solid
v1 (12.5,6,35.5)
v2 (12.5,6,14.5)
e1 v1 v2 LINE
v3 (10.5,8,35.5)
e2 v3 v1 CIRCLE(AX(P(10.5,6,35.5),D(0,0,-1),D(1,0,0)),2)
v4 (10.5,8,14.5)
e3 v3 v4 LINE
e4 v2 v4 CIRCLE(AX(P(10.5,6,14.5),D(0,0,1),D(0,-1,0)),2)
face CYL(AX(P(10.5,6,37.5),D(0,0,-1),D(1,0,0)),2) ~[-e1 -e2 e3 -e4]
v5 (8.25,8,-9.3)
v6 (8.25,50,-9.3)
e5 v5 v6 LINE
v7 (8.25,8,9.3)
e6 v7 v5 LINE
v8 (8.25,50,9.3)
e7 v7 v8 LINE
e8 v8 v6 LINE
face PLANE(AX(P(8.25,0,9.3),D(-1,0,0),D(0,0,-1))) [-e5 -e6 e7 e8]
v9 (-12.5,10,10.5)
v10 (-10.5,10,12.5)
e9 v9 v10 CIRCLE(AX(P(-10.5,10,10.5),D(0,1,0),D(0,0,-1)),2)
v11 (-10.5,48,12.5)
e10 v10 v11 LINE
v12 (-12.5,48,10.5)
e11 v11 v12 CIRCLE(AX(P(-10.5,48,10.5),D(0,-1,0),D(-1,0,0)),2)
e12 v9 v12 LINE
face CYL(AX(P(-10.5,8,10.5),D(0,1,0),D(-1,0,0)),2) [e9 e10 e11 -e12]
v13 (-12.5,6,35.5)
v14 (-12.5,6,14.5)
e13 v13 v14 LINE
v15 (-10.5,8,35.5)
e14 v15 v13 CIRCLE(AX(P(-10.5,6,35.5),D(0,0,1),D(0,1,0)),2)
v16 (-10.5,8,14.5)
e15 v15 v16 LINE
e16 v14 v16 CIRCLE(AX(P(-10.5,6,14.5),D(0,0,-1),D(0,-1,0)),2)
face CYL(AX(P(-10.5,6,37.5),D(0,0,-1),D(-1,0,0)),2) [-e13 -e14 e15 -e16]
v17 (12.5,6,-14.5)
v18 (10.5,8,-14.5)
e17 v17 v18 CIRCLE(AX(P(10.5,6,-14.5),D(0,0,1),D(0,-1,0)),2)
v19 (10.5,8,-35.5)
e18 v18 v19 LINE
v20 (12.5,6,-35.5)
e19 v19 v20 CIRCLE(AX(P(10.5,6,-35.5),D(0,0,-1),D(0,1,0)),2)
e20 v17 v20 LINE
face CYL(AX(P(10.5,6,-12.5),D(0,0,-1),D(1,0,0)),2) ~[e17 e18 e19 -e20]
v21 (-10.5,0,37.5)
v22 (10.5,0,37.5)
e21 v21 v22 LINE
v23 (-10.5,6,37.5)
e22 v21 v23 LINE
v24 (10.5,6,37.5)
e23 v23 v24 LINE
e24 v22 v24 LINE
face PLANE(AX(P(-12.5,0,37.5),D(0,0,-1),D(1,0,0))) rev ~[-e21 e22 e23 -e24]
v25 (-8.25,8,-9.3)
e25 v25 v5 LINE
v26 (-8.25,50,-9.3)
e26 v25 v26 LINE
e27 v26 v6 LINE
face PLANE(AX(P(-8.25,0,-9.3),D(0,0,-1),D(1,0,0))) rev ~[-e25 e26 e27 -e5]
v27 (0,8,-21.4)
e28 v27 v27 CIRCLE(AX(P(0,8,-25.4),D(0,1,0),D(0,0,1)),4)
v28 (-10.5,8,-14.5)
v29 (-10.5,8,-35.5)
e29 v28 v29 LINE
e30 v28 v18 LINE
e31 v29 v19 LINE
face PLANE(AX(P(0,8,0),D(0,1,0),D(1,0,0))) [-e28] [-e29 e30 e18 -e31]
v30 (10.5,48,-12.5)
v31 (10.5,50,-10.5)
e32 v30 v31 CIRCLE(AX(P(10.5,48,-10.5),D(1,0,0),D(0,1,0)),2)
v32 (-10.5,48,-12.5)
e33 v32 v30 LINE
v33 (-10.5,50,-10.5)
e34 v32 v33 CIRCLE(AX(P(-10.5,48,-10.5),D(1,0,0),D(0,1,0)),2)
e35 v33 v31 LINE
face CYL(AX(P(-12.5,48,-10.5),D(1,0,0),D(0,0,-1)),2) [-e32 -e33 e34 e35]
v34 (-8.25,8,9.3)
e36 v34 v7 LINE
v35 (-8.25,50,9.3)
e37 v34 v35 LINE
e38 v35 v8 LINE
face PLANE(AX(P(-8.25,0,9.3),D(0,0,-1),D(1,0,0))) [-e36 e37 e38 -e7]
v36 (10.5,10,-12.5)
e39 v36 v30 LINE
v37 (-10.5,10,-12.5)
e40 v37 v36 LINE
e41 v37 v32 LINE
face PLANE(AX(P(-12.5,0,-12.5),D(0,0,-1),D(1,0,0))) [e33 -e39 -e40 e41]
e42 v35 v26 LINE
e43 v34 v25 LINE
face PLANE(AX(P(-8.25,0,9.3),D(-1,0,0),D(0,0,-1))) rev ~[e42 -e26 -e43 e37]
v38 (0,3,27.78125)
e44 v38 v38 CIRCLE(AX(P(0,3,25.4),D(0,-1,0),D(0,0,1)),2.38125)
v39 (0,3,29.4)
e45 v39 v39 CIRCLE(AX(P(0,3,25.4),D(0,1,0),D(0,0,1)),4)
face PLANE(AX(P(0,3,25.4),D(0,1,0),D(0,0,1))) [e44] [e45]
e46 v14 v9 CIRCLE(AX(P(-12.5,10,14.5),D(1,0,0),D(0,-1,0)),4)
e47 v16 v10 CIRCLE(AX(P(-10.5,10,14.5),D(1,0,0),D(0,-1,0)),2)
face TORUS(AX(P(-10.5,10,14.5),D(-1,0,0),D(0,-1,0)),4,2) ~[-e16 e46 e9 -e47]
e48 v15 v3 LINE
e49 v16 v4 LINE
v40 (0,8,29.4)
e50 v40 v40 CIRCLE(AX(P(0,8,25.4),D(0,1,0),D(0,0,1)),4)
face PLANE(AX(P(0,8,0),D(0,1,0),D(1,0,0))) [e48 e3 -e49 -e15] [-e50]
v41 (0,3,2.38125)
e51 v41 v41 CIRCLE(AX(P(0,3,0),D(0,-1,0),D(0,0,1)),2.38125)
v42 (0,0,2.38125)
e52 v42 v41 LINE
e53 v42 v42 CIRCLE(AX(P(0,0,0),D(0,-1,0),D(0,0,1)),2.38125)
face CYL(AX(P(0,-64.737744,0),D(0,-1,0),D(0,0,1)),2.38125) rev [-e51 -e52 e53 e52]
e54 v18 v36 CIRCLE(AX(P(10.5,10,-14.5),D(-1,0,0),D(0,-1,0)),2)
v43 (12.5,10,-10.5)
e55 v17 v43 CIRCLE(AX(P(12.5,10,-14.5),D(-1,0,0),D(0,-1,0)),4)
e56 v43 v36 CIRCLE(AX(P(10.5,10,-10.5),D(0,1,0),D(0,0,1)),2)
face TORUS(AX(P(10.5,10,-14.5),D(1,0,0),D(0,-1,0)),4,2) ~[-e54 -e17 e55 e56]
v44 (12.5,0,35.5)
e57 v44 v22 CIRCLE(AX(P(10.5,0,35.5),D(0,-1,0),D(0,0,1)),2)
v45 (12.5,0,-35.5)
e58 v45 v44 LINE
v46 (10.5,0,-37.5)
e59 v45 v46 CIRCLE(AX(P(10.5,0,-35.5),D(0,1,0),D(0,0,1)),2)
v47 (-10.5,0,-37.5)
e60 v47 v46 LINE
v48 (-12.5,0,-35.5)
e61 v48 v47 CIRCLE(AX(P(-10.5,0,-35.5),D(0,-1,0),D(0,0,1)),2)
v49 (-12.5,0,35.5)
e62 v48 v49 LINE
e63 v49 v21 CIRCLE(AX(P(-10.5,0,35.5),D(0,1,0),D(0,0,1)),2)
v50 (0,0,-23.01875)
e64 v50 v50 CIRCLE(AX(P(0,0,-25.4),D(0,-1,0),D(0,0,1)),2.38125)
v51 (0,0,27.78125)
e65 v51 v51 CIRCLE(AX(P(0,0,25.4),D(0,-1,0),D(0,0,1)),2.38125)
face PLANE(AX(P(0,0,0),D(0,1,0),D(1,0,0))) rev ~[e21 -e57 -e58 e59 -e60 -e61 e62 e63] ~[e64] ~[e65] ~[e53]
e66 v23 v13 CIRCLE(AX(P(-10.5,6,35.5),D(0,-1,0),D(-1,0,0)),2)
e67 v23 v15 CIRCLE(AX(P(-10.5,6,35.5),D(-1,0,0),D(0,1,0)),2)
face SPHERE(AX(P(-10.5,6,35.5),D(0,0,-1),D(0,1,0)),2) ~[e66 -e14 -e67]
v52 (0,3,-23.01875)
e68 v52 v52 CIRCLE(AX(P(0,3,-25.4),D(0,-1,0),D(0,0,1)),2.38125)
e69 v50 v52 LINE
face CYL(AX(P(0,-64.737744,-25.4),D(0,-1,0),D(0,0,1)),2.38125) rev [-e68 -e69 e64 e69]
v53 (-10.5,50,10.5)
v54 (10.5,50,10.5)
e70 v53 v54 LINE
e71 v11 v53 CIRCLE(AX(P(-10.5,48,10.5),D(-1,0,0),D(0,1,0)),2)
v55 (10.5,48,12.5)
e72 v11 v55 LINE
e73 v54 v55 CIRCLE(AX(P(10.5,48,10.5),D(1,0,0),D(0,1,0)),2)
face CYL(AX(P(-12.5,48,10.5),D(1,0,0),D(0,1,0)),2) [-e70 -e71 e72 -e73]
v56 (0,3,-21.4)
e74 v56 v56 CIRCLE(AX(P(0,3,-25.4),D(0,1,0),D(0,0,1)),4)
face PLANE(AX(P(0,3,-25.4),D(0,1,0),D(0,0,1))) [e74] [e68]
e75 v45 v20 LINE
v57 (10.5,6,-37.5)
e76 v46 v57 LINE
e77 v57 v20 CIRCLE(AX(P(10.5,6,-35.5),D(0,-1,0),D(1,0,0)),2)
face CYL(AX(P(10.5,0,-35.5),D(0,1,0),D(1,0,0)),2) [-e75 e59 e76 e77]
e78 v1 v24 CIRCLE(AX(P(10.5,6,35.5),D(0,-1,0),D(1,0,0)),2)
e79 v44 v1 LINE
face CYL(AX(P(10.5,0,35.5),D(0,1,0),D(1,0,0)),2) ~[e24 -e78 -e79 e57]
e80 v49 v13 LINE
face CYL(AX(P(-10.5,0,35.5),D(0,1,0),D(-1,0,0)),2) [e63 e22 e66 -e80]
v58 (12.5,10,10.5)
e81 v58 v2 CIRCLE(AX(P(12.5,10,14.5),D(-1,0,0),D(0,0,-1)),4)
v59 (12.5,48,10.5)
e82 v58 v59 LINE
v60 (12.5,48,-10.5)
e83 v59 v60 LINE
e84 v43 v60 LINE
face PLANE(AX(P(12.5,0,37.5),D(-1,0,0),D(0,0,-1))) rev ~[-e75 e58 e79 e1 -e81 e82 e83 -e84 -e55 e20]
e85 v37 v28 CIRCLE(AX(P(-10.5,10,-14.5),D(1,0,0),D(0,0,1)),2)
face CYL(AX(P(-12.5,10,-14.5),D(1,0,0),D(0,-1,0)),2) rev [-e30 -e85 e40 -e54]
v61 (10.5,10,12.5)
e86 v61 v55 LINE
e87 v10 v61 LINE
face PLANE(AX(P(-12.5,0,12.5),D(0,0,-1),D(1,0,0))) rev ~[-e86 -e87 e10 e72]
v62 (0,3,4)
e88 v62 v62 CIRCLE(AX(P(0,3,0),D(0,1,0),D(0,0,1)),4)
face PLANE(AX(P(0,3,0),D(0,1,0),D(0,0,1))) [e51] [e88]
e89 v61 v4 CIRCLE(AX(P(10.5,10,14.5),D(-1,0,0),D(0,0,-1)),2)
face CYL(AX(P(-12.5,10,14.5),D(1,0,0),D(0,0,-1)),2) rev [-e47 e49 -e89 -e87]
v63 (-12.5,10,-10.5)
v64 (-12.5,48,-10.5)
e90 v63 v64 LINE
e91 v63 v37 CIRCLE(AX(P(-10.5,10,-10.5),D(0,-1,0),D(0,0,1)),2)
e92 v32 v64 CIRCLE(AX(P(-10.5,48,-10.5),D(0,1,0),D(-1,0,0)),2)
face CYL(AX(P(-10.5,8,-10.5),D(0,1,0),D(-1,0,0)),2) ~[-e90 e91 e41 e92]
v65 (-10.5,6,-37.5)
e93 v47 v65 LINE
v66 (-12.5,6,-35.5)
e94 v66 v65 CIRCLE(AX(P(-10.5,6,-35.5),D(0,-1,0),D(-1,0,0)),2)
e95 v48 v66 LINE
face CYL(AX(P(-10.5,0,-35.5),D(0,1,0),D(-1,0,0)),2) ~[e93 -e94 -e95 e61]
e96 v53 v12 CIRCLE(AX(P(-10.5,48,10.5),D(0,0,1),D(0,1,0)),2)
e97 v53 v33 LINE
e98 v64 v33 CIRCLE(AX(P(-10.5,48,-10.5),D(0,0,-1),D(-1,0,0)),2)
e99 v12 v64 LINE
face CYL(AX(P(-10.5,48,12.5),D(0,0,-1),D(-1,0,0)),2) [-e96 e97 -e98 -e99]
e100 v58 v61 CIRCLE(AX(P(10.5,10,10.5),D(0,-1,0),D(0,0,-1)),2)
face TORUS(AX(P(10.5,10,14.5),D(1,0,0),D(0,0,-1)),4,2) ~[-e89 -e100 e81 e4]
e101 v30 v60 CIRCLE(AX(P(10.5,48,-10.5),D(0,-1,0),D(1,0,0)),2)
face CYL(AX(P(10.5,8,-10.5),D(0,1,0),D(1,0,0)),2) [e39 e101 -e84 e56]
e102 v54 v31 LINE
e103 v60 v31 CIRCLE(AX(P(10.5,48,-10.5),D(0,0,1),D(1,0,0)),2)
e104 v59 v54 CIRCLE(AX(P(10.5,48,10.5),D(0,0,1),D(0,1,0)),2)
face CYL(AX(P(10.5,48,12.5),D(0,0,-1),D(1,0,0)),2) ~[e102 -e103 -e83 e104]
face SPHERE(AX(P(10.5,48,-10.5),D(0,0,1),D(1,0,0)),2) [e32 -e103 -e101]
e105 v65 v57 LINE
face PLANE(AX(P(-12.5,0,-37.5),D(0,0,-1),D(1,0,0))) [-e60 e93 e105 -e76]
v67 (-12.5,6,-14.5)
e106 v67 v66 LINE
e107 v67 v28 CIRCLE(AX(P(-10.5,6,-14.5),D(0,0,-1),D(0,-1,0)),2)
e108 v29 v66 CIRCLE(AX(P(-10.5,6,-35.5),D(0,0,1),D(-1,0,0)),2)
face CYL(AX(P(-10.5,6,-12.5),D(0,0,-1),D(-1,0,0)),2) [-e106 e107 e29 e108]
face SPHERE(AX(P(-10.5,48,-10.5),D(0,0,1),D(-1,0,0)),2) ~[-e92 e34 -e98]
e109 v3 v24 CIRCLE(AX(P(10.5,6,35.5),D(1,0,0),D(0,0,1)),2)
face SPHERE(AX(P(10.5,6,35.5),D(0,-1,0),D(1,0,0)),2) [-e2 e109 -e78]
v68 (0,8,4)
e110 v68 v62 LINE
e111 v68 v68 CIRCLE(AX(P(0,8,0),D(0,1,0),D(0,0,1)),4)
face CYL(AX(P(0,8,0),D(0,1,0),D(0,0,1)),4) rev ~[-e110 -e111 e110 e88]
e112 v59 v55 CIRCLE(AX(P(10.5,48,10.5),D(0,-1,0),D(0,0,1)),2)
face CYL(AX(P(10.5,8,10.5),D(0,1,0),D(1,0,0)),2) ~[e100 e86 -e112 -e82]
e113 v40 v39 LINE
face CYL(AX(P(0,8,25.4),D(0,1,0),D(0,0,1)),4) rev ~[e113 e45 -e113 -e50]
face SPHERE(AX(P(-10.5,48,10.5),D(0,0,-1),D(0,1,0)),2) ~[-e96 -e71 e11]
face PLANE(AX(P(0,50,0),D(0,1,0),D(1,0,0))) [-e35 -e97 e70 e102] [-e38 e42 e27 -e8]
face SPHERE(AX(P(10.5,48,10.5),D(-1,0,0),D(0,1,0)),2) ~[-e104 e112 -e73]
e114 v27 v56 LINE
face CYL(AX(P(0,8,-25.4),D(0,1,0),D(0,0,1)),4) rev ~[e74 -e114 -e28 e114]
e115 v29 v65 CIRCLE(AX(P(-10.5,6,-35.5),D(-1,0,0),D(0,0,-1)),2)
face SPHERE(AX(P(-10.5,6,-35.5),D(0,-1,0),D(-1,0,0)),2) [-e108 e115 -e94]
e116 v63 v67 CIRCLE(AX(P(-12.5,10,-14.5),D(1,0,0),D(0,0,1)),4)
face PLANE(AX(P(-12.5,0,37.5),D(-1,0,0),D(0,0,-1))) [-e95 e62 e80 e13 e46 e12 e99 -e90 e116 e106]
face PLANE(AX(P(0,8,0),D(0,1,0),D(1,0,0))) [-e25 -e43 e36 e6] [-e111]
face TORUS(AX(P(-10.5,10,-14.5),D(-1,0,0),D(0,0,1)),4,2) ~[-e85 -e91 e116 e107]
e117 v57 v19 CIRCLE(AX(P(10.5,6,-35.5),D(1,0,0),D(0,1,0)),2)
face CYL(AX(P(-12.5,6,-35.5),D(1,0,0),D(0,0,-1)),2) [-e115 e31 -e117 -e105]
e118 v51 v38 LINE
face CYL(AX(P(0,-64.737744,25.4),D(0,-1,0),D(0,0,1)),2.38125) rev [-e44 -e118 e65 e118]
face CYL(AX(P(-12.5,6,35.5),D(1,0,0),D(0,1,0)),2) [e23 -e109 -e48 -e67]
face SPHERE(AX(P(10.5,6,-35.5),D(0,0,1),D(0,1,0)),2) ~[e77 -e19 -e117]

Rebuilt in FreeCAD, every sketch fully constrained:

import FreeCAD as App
import Part
import Sketcher

V = App.Vector


def edges_at(feature, points):
    """Names of the edges that pass closest to the given points."""
    edges = feature.Shape.Edges
    near = lambda p: min(range(len(edges)), key=lambda i: edges[i].distToShape(Part.Vertex(*p))[0])
    return sorted({f"Edge{near(p) + 1}" for p in points})

doc = App.newDocument("Part")
params = doc.addObject("Spreadsheet::Sheet", "Params")
for row, (alias, value) in enumerate([
    ("sketch1_width", "25 mm"),
    ("sketch1_width2", "16.5 mm"),
    ("sketch1_height", "18.6 mm"),
    ("pad1_length", "50 mm"),
    ("sketch2_width", "25 mm"),
    ("sketch2_height", "75 mm"),
    ("pad2_length", "8 mm"),
    ("fillet_radius", "2 mm"),
    ("sketch3_diameter", "8 mm"),
    ("pocket1_length", "5 mm"),
], start=1):
    params.set(f"A{row}", alias)
    params.set(f"B{row}", "=" + value)
    params.setAlias(f"B{row}", alias)

body = doc.addObject("PartDesign::Body", "Body")

# Sketch on XZ plane
sketch1 = doc.addObject("Sketcher::SketchObject", "Sketch")
body.addObject(sketch1)
sketch1.AttachmentSupport = (doc.XZ_Plane, [""])
sketch1.MapMode = "FlatFace"
sketch1.addGeometry(Part.LineSegment(V(-12.5, -12.5, 0), V(-12.5, 12.5, 0)), False)
sketch1.addGeometry(Part.LineSegment(V(-12.5, 12.5, 0), V(12.5, 12.5, 0)), False)
sketch1.addGeometry(Part.LineSegment(V(12.5, 12.5, 0), V(12.5, -12.5, 0)), False)
sketch1.addGeometry(Part.LineSegment(V(12.5, -12.5, 0), V(-12.5, -12.5, 0)), False)
sketch1.addGeometry(Part.LineSegment(V(8.25, 9.3, 0), V(-8.25, 9.3, 0)), False)
sketch1.addGeometry(Part.LineSegment(V(-8.25, 9.3, 0), V(-8.25, -9.3, 0)), False)
sketch1.addGeometry(Part.LineSegment(V(-8.25, -9.3, 0), V(8.25, -9.3, 0)), False)
sketch1.addGeometry(Part.LineSegment(V(8.25, -9.3, 0), V(8.25, 9.3, 0)), False)
sketch1.addConstraint(Sketcher.Constraint("Coincident", 0, 2, 1, 1))
sketch1.addConstraint(Sketcher.Constraint("Coincident", 1, 2, 2, 1))
sketch1.addConstraint(Sketcher.Constraint("Coincident", 2, 2, 3, 1))
sketch1.addConstraint(Sketcher.Constraint("Coincident", 3, 2, 0, 1))
sketch1.addConstraint(Sketcher.Constraint("Coincident", 4, 2, 5, 1))
sketch1.addConstraint(Sketcher.Constraint("Coincident", 5, 2, 6, 1))
sketch1.addConstraint(Sketcher.Constraint("Coincident", 6, 2, 7, 1))
sketch1.addConstraint(Sketcher.Constraint("Coincident", 7, 2, 4, 1))
sketch1.addConstraint(Sketcher.Constraint("Vertical", 0))
sketch1.addConstraint(Sketcher.Constraint("Horizontal", 1))
sketch1.addConstraint(Sketcher.Constraint("Vertical", 2))
sketch1.addConstraint(Sketcher.Constraint("Horizontal", 3))
sketch1.addConstraint(Sketcher.Constraint("Horizontal", 4))
sketch1.addConstraint(Sketcher.Constraint("Vertical", 5))
sketch1.addConstraint(Sketcher.Constraint("Horizontal", 6))
sketch1.addConstraint(Sketcher.Constraint("Vertical", 7))
sketch1.addConstraint(Sketcher.Constraint("Symmetric", 0, 2, 2, 2, -1, 1))
sketch1.addConstraint(Sketcher.Constraint("Symmetric", 4, 2, 6, 2, -1, 1))
sketch1.addConstraint(Sketcher.Constraint("Equal", 3, 0))
sketch1.addConstraint(Sketcher.Constraint("DistanceX", 1, 1, 1, 2, 25.0))
sketch1.addConstraint(Sketcher.Constraint("DistanceX", 4, 2, 4, 1, 16.5))
sketch1.addConstraint(Sketcher.Constraint("DistanceY", 5, 2, 5, 1, 18.6))
sketch1.setExpression("Constraints[19]", "Params.sketch1_width")
sketch1.setExpression("Constraints[20]", "Params.sketch1_width2")
sketch1.setExpression("Constraints[21]", "Params.sketch1_height")
pad1 = doc.addObject("PartDesign::Pad", "Pad")
body.addObject(pad1)
pad1.Profile = sketch1
pad1.setExpression("Length", "Params.pad1_length")
pad1.Reversed = True

# Sketch on XZ plane
sketch2 = doc.addObject("Sketcher::SketchObject", "Sketch001")
body.addObject(sketch2)
sketch2.AttachmentSupport = (doc.XZ_Plane, [""])
sketch2.MapMode = "FlatFace"
sketch2.addGeometry(Part.LineSegment(V(-12.5, -37.5, 0), V(-12.5, 37.5, 0)), False)
sketch2.addGeometry(Part.LineSegment(V(-12.5, 37.5, 0), V(12.5, 37.5, 0)), False)
sketch2.addGeometry(Part.LineSegment(V(12.5, 37.5, 0), V(12.5, -37.5, 0)), False)
sketch2.addGeometry(Part.LineSegment(V(12.5, -37.5, 0), V(-12.5, -37.5, 0)), False)
sketch2.addConstraint(Sketcher.Constraint("Coincident", 0, 2, 1, 1))
sketch2.addConstraint(Sketcher.Constraint("Coincident", 1, 2, 2, 1))
sketch2.addConstraint(Sketcher.Constraint("Coincident", 2, 2, 3, 1))
sketch2.addConstraint(Sketcher.Constraint("Coincident", 3, 2, 0, 1))
sketch2.addConstraint(Sketcher.Constraint("Vertical", 0))
sketch2.addConstraint(Sketcher.Constraint("Horizontal", 1))
sketch2.addConstraint(Sketcher.Constraint("Vertical", 2))
sketch2.addConstraint(Sketcher.Constraint("Horizontal", 3))
sketch2.addConstraint(Sketcher.Constraint("Symmetric", 0, 2, 2, 2, -1, 1))
sketch2.addConstraint(Sketcher.Constraint("DistanceX", 1, 1, 1, 2, 25.0))
sketch2.addConstraint(Sketcher.Constraint("DistanceY", 0, 1, 0, 2, 75.0))
sketch2.setExpression("Constraints[9]", "Params.sketch2_width")
sketch2.setExpression("Constraints[10]", "Params.sketch2_height")
pad2 = doc.addObject("PartDesign::Pad", "Pad001")
body.addObject(pad2)
pad2.Profile = sketch2
pad2.setExpression("Length", "Params.pad2_length")
pad2.Reversed = True
doc.recompute()

fillet = doc.addObject("PartDesign::Fillet", "Fillet")
body.addObject(fillet)
fillet.Base = (pad2, edges_at(pad2, [
    (-12.5, 50, 0),
    (0, 50, 12.5),
    (12.5, 4, 37.5),
    (-12.5, 4, -37.5),
    (-12.5, 8, -25),
    (0, 8, -12.5),
    (12.5, 8, -25),
    (0, 8, -37.5),
    (12.5, 8, 25),
    (0, 8, 12.5),
    (-12.5, 8, 25),
    (0, 8, 37.5),
    (12.5, 4, -37.5),
    (-12.5, 4, 37.5),
    (12.5, 50, 0),
    (12.5, 29, 12.5),
    (-12.5, 29, 12.5),
    (-12.5, 29, -12.5),
    (12.5, 29, -12.5),
    (0, 50, -12.5),
]))
fillet.setExpression("Radius", "Params.fillet_radius")

# Sketch on XZ plane
sketch3 = doc.addObject("Sketcher::SketchObject", "Sketch002")
body.addObject(sketch3)
sketch3.AttachmentSupport = (doc.XZ_Plane, [""])
sketch3.MapMode = "FlatFace"
sketch3.AttachmentOffset = App.Placement(V(0, 0, -8), App.Rotation())
sketch3.addGeometry(Part.Circle(V(0, 0, 0), V(0, 0, 1), 4), False)
sketch3.addGeometry(Part.Circle(V(0, -25.4, 0), V(0, 0, 1), 4), False)
sketch3.addGeometry(Part.Circle(V(0, 25.4, 0), V(0, 0, 1), 4), False)
sketch3.addConstraint(Sketcher.Constraint("Coincident", 0, 3, -1, 1))
sketch3.addConstraint(Sketcher.Constraint("Equal", 0, 1))
sketch3.addConstraint(Sketcher.Constraint("Equal", 1, 2))
sketch3.addConstraint(Sketcher.Constraint("Symmetric", 1, 3, 2, 3, -1, 1))
sketch3.addConstraint(Sketcher.Constraint("PointOnObject", 1, 3, -2))
sketch3.addConstraint(Sketcher.Constraint("Diameter", 0, 8.0))
sketch3.addConstraint(Sketcher.Constraint("DistanceY", 1, 3, -1, 1, 25.4))
sketch3.setExpression("Constraints[5]", "Params.sketch3_diameter")
pocket1 = doc.addObject("PartDesign::Pocket", "Pocket")
body.addObject(pocket1)
pocket1.Profile = sketch3
pocket1.setExpression("Length", "Params.pocket1_length")
pocket1.Reversed = True

# Sketch on XZ plane
sketch4 = doc.addObject("Sketcher::SketchObject", "Sketch003")
body.addObject(sketch4)
sketch4.AttachmentSupport = (doc.XZ_Plane, [""])
sketch4.MapMode = "FlatFace"
sketch4.addGeometry(Part.Circle(V(0, 0, 0), V(0, 0, 1), 2.38125), False)
sketch4.addGeometry(Part.Circle(V(0, -25.4, 0), V(0, 0, 1), 2.38125), False)
sketch4.addGeometry(Part.Circle(V(0, 25.4, 0), V(0, 0, 1), 2.38125), False)
sketch4.addConstraint(Sketcher.Constraint("Coincident", 0, 3, -1, 1))
sketch4.addConstraint(Sketcher.Constraint("Equal", 0, 1))
sketch4.addConstraint(Sketcher.Constraint("Equal", 1, 2))
sketch4.addConstraint(Sketcher.Constraint("Symmetric", 1, 3, 2, 3, -1, 1))
sketch4.addConstraint(Sketcher.Constraint("PointOnObject", 1, 3, -2))
sketch4.addConstraint(Sketcher.Constraint("Diameter", 0, 4.7625))
sketch4.addConstraint(Sketcher.Constraint("DistanceY", 1, 3, -1, 1, 25.4))
pocket2 = doc.addObject("PartDesign::Pocket", "Pocket001")
body.addObject(pocket2)
pocket2.Profile = sketch4
pocket2.Type = "ThroughAll"
pocket2.Midplane = True

doc.recompute()
